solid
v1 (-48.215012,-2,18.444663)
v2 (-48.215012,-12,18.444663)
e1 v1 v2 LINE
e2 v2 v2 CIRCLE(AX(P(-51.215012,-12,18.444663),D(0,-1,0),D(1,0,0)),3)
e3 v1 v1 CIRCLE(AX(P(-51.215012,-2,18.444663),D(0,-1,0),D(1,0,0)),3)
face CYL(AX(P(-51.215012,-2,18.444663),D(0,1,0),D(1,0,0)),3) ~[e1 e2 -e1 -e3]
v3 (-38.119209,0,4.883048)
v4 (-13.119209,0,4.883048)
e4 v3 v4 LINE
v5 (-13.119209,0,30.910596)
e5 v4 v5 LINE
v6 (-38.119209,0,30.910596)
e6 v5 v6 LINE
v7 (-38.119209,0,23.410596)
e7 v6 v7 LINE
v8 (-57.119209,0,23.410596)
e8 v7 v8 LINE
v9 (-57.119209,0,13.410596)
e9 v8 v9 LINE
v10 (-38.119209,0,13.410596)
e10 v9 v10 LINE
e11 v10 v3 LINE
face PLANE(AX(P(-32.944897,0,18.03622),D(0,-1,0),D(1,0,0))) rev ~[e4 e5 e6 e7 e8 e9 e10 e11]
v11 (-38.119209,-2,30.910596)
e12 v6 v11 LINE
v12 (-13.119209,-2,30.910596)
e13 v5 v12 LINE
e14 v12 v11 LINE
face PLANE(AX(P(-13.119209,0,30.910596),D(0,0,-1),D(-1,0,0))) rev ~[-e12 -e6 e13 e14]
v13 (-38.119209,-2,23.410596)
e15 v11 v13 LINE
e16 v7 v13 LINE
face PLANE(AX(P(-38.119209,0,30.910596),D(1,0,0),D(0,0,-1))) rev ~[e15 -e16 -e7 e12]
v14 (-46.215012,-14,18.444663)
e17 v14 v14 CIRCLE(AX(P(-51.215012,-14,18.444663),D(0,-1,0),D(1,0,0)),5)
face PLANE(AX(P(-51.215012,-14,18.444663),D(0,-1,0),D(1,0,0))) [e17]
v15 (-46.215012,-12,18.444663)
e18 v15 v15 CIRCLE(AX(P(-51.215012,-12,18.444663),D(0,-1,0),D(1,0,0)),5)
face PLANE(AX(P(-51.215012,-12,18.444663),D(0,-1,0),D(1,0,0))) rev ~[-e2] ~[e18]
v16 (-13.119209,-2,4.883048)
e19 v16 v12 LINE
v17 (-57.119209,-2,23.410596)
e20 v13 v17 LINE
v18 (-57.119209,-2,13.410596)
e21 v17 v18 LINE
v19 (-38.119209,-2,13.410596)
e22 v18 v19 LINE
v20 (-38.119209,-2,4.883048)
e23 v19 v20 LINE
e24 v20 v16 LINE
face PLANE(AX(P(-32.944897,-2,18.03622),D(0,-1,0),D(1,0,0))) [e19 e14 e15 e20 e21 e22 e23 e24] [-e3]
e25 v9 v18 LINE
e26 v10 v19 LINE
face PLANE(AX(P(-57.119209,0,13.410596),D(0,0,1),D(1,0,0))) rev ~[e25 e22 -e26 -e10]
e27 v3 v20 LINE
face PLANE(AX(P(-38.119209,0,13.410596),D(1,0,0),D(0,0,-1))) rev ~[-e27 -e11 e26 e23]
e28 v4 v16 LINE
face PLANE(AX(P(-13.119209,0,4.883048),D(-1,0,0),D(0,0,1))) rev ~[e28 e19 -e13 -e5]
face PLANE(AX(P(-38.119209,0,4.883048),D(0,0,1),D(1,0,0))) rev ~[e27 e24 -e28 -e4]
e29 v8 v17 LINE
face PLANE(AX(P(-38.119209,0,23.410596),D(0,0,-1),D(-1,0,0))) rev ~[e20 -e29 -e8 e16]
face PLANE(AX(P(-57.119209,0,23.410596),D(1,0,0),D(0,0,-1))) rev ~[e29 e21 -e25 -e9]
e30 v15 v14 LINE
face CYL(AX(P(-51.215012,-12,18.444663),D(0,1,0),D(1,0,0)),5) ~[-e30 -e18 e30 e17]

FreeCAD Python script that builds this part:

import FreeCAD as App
import Part
import Sketcher

V = App.Vector
Q = App.Units.Quantity


def add_polygon(sketch, points):
    """Adds a closed chain of lines whose ends are joined by coincident constraints."""
    first, n = sketch.GeometryCount, len(points)
    for a, b in zip(points, points[1:] + points[:1]):
        sketch.addGeometry(Part.LineSegment(App.Vector(*a, 0), App.Vector(*b, 0)), False)
    for i in range(n):
        sketch.addConstraint(Sketcher.Constraint("Coincident", first + i, 2, first + (i + 1) % n, 1))

doc = App.newDocument("Part")
body = doc.addObject("PartDesign::Body", "Body")

# Sketch on XZ plane
sketch1 = body.newObject("Sketcher::SketchObject", "Sketch")
sketch1.AttachmentSupport = (doc.getObject("XZ_Plane"), [""])
sketch1.MapMode = "FlatFace"
add_polygon(sketch1, [(-13, 31), (-38, 31), (-38, 23), (-57, 23), (-57, 13), (-38, 13), (-38, 5), (-13, 5)])  # lines 0-7
sketch1.addConstraint([
    Sketcher.Constraint("Horizontal", 0),
    Sketcher.Constraint("Vertical", 1),
    Sketcher.Constraint("Horizontal", 2),
    Sketcher.Constraint("Vertical", 3),
    Sketcher.Constraint("Horizontal", 4),
    Sketcher.Constraint("Vertical", 5),
    Sketcher.Constraint("Horizontal", 6),
    Sketcher.Constraint("Vertical", 7),
    Sketcher.Constraint("Vertical", 1, 2, 4, 2),
    Sketcher.Constraint("DistanceX", 0, 2, 0, 1, Q("25 mm")),
    Sketcher.Constraint("DistanceX", 2, 2, 2, 1, Q("19 mm")),
    Sketcher.Constraint("DistanceY", 3, 2, 3, 1, Q("10 mm")),
    Sketcher.Constraint("DistanceY", 1, 2, 1, 1, Q("7.5 mm")),
    Sketcher.Constraint("DistanceY", 7, 1, 7, 2, Q("26.027548 mm")),
    Sketcher.Constraint("DistanceX", 0, 2, -1, 1, Q("38.119209 mm")),
    Sketcher.Constraint("DistanceY", -1, 1, 0, 2, Q("30.910596 mm")),
])
pad1 = body.newObject("PartDesign::Pad", "Pad")
pad1.Profile = sketch1
pad1.Length = 2

# Sketch on XZ plane
sketch2 = body.newObject("Sketcher::SketchObject", "Sketch001")
sketch2.AttachmentSupport = (doc.getObject("XZ_Plane"), [""])
sketch2.MapMode = "FlatFace"
sketch2.AttachmentOffset = App.Placement(V(0, 0, 2), App.Rotation())
sketch2.addGeometry(Part.Circle(V(-51.2, 18.4, 0), V(0, 0, 1), 3), False)
sketch2.addConstraint([
    Sketcher.Constraint("Diameter", 0, Q("6 mm")),
    Sketcher.Constraint("DistanceX", 0, 3, -1, 1, Q("51.215012 mm")),
    Sketcher.Constraint("DistanceY", -1, 1, 0, 3, Q("18.444663 mm")),
])
pad2 = body.newObject("PartDesign::Pad", "Pad001")
pad2.Profile = sketch2
pad2.Length = 10

# Sketch on XZ plane
sketch3 = body.newObject("Sketcher::SketchObject", "Sketch002")
sketch3.AttachmentSupport = (doc.getObject("XZ_Plane"), [""])
sketch3.MapMode = "FlatFace"
sketch3.AttachmentOffset = App.Placement(V(0, 0, 12), App.Rotation())
sketch3.addGeometry(Part.Circle(V(-51, 18, 0), V(0, 0, 1), 5), False)
sketch3.addConstraint([
    Sketcher.Constraint("Diameter", 0, Q("10 mm")),
    Sketcher.Constraint("DistanceX", 0, 3, -1, 1, Q("51.215012 mm")),
    Sketcher.Constraint("DistanceY", -1, 1, 0, 3, Q("18.444663 mm")),
])
pad3 = body.newObject("PartDesign::Pad", "Pad002")
pad3.Profile = sketch3
pad3.Length = 2

doc.recompute()
